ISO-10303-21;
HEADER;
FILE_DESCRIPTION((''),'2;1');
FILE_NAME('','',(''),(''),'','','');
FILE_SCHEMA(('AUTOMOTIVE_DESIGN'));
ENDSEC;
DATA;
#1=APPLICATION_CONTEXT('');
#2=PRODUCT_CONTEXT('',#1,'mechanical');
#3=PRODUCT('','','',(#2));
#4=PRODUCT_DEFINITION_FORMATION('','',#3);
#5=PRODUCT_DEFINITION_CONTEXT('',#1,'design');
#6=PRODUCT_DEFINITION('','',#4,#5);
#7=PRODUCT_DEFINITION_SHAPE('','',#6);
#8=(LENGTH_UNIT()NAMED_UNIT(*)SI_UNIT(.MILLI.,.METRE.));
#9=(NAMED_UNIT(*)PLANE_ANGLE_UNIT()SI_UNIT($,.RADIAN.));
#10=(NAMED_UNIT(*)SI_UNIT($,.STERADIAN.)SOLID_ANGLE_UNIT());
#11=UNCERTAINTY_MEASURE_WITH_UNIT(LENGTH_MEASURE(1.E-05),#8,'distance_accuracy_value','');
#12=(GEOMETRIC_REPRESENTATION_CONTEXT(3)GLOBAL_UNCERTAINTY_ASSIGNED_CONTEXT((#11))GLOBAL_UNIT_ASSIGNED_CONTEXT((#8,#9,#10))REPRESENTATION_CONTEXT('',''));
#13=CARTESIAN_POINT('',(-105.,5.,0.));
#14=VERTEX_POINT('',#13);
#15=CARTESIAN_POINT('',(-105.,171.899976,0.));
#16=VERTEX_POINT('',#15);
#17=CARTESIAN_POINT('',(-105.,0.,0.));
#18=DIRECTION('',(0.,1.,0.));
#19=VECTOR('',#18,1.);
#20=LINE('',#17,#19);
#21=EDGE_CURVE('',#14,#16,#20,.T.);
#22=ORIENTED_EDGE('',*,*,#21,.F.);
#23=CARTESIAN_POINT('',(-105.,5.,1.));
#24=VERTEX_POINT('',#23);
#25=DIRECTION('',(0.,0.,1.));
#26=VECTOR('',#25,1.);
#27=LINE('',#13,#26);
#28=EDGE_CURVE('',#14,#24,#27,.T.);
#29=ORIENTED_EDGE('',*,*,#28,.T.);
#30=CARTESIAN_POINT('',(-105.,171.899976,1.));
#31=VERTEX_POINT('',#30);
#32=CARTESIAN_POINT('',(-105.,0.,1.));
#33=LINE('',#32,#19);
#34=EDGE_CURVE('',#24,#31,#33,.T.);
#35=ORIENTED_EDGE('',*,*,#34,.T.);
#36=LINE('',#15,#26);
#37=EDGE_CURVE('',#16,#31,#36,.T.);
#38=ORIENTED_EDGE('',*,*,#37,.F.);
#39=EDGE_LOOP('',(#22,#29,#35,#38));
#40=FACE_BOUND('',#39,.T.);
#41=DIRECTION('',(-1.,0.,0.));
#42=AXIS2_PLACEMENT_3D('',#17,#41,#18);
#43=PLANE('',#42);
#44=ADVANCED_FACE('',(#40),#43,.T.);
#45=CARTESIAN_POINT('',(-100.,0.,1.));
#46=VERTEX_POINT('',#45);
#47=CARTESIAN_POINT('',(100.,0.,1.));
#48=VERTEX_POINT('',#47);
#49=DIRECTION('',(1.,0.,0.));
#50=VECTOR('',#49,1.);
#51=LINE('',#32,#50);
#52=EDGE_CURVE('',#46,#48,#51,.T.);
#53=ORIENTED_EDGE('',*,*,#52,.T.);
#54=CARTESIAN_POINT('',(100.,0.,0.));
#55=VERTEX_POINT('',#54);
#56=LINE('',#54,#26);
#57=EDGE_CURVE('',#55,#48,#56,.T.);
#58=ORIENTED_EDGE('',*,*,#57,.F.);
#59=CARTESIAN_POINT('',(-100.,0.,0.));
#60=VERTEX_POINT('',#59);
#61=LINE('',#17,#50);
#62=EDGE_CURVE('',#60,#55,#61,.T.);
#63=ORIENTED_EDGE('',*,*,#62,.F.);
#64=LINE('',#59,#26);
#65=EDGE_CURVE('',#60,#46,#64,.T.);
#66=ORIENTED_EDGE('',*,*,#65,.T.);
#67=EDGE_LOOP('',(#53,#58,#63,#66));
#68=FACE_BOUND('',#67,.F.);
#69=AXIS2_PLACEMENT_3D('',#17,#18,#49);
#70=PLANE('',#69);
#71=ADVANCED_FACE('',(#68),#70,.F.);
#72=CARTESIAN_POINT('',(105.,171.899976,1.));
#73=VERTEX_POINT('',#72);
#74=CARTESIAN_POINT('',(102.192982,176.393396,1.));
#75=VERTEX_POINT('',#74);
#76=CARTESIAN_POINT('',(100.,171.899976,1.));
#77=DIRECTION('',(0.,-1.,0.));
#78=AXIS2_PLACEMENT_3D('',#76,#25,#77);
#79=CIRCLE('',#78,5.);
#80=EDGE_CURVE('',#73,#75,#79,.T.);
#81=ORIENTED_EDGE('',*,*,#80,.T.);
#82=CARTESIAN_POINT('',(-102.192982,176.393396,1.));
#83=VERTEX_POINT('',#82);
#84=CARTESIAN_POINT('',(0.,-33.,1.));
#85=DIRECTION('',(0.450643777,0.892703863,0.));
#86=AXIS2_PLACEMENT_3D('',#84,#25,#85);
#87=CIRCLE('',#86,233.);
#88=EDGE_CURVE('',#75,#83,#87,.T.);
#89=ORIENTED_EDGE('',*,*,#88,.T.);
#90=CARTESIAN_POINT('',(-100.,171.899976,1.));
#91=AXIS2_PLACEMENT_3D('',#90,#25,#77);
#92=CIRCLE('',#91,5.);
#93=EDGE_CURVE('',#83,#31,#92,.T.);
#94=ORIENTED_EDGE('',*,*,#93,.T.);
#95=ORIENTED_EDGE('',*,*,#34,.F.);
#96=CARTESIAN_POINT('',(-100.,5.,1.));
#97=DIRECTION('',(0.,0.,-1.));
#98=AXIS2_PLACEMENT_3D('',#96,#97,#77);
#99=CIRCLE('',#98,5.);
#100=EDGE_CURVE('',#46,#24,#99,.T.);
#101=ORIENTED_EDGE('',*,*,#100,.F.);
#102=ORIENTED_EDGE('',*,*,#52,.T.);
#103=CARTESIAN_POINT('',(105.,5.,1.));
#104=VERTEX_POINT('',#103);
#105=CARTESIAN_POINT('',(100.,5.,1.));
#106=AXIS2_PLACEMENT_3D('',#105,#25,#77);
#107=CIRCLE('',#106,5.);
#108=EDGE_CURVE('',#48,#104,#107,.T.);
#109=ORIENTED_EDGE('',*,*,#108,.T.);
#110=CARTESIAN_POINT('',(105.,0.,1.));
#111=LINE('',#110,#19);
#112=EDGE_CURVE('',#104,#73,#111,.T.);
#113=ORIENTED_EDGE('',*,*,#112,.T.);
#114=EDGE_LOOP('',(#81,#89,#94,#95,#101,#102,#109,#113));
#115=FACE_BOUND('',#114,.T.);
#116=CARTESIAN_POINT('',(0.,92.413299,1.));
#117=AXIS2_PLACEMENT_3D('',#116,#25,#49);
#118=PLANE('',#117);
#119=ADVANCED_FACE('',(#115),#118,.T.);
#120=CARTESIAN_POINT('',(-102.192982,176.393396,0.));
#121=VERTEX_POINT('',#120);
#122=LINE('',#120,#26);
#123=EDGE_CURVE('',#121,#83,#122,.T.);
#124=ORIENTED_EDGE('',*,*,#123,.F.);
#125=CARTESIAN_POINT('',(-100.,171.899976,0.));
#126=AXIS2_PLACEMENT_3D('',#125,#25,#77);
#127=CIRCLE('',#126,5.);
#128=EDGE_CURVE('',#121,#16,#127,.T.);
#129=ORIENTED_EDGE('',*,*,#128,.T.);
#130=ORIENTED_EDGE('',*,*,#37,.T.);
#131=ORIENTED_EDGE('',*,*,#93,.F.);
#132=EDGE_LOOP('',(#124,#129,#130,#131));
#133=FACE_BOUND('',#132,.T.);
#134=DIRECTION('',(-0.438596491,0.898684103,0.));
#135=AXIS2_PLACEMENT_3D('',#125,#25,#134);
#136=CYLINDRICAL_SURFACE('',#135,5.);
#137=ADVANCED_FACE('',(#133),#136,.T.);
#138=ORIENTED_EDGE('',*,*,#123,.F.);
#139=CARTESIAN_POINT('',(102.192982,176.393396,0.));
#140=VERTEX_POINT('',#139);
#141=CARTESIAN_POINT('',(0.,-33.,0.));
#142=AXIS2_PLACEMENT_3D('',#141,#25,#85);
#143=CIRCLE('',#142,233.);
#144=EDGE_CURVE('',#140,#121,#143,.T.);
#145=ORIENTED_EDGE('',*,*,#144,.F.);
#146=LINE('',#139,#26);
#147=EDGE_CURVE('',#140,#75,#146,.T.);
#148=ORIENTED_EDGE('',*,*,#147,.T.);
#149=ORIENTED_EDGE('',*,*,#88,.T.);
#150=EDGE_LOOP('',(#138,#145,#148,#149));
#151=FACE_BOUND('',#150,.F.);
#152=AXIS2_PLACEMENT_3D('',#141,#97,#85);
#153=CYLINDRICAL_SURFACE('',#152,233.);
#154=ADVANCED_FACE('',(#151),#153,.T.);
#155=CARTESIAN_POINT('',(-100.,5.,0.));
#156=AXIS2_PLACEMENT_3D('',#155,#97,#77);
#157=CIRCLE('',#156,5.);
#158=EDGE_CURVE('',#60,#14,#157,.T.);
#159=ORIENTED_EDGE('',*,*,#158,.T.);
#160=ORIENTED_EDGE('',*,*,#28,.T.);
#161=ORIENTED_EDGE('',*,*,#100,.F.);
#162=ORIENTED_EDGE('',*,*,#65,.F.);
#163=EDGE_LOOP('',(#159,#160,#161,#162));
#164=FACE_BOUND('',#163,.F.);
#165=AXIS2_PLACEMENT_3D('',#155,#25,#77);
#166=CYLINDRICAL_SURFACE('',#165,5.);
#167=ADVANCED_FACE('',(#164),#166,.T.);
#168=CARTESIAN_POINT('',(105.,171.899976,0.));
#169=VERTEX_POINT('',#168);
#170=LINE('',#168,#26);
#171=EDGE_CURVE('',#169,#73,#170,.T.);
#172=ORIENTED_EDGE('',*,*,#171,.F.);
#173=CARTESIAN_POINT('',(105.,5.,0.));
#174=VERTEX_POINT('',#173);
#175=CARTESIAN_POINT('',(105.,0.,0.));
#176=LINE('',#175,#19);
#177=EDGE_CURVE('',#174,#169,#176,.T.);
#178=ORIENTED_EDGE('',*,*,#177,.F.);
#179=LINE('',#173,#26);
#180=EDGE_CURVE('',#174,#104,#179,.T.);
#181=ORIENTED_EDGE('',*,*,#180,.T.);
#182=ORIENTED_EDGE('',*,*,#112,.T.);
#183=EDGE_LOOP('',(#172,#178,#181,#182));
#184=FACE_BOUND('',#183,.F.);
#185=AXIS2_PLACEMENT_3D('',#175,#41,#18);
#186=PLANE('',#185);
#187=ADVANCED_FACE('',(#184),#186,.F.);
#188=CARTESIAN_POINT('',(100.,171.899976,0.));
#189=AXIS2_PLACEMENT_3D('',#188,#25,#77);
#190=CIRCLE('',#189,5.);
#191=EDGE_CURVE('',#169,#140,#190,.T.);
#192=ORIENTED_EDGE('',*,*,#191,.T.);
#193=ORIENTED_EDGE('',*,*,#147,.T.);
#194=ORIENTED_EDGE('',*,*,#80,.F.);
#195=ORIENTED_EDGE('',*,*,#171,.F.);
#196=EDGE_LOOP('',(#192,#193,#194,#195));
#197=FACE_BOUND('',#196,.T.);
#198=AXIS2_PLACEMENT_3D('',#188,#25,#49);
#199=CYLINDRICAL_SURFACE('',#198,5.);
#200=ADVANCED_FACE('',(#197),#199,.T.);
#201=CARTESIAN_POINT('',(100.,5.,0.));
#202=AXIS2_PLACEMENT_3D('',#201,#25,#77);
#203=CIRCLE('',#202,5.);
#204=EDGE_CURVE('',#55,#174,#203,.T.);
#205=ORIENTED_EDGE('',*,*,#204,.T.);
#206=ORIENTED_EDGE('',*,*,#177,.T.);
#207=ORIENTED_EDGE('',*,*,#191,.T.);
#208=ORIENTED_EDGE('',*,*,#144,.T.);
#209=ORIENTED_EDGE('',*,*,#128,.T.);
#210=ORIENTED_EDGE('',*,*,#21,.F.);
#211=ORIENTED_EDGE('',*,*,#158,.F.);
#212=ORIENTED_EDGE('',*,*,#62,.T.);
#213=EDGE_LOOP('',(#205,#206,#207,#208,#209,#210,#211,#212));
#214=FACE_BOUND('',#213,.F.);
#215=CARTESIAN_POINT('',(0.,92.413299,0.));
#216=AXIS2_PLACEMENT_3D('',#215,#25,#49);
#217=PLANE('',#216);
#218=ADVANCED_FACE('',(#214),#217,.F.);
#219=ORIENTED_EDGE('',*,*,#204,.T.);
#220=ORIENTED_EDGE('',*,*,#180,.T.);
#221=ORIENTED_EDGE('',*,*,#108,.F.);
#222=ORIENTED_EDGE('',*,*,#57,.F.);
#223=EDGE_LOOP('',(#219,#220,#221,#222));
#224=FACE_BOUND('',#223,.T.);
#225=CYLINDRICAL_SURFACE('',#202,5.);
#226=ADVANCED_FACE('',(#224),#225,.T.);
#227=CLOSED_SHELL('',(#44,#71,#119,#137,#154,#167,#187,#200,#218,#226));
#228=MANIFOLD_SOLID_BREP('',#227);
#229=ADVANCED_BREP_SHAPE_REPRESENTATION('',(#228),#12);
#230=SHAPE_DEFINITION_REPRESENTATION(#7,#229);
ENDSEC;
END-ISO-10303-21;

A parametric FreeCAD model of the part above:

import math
import FreeCAD as App
import Part
import Sketcher
from FreeCAD import Vector


def edges_at(feature, points):
    """Names of the edges that pass closest to the given points."""
    edges = feature.Shape.Edges
    near = lambda p: min(range(len(edges)), key=lambda i: edges[i].distToShape(Part.Vertex(*p))[0])
    return sorted({f"Edge{near(p) + 1}" for p in points})

doc = App.newDocument("Part")
body = doc.addObject("PartDesign::Body", "Body")

# Sketch on XY plane
sketch1 = body.newObject("Sketcher::SketchObject", "Sketch")
sketch1.AttachmentSupport = (doc.getObject("XY_Plane"), [""])
sketch1.MapMode = "FlatFace"
sketch1.addGeometry(Part.LineSegment(Vector(-105, 0, 0), Vector(105, 0, 0)), False)
sketch1.addGeometry(Part.LineSegment(Vector(105, 0, 0), Vector(105, 175, 0)), False)
sketch1.addGeometry(Part.ArcOfCircle(Part.Circle(Vector(0, -33, 0), Vector(0, 0, 1), 233), math.radians(63), math.radians(117)), False)
sketch1.addGeometry(Part.LineSegment(Vector(-105, 175, 0), Vector(-105, 0, 0)), False)
sketch1.addConstraint(Sketcher.Constraint("Coincident", 0, 2, 1, 1))
sketch1.addConstraint(Sketcher.Constraint("Coincident", 1, 2, 2, 1))
sketch1.addConstraint(Sketcher.Constraint("Coincident", 2, 2, 3, 1))
sketch1.addConstraint(Sketcher.Constraint("Coincident", 3, 2, 0, 1))
sketch1.addConstraint(Sketcher.Constraint("Horizontal", 0))
sketch1.addConstraint(Sketcher.Constraint("Vertical", 1))
sketch1.addConstraint(Sketcher.Constraint("Vertical", 3))
sketch1.addConstraint(Sketcher.Constraint("Symmetric", 0, 2, 3, 2, -1, 1))
sketch1.addConstraint(Sketcher.Constraint("PointOnObject", 2, 3, -2))
sketch1.addConstraint(Sketcher.Constraint("Radius", 2, 233.0))
sketch1.addConstraint(Sketcher.Constraint("DistanceX", 0, 1, 0, 2, 210.0))
sketch1.addConstraint(Sketcher.Constraint("DistanceY", 1, 1, 1, 2, 175.0))
pad1 = body.newObject("PartDesign::Pad", "Pad")
pad1.Profile = sketch1
pad1.Length = 1
doc.recompute()

fillet = body.newObject("PartDesign::Fillet", "Fillet")
fillet.Base = (pad1, edges_at(pad1, [
    (105, 0, 0.5),
    (105, 175, 0.5),
    (-105, 175, 0.5),
    (-105, 0, 0.5),
]))
fillet.Radius = 5

doc.recompute()
